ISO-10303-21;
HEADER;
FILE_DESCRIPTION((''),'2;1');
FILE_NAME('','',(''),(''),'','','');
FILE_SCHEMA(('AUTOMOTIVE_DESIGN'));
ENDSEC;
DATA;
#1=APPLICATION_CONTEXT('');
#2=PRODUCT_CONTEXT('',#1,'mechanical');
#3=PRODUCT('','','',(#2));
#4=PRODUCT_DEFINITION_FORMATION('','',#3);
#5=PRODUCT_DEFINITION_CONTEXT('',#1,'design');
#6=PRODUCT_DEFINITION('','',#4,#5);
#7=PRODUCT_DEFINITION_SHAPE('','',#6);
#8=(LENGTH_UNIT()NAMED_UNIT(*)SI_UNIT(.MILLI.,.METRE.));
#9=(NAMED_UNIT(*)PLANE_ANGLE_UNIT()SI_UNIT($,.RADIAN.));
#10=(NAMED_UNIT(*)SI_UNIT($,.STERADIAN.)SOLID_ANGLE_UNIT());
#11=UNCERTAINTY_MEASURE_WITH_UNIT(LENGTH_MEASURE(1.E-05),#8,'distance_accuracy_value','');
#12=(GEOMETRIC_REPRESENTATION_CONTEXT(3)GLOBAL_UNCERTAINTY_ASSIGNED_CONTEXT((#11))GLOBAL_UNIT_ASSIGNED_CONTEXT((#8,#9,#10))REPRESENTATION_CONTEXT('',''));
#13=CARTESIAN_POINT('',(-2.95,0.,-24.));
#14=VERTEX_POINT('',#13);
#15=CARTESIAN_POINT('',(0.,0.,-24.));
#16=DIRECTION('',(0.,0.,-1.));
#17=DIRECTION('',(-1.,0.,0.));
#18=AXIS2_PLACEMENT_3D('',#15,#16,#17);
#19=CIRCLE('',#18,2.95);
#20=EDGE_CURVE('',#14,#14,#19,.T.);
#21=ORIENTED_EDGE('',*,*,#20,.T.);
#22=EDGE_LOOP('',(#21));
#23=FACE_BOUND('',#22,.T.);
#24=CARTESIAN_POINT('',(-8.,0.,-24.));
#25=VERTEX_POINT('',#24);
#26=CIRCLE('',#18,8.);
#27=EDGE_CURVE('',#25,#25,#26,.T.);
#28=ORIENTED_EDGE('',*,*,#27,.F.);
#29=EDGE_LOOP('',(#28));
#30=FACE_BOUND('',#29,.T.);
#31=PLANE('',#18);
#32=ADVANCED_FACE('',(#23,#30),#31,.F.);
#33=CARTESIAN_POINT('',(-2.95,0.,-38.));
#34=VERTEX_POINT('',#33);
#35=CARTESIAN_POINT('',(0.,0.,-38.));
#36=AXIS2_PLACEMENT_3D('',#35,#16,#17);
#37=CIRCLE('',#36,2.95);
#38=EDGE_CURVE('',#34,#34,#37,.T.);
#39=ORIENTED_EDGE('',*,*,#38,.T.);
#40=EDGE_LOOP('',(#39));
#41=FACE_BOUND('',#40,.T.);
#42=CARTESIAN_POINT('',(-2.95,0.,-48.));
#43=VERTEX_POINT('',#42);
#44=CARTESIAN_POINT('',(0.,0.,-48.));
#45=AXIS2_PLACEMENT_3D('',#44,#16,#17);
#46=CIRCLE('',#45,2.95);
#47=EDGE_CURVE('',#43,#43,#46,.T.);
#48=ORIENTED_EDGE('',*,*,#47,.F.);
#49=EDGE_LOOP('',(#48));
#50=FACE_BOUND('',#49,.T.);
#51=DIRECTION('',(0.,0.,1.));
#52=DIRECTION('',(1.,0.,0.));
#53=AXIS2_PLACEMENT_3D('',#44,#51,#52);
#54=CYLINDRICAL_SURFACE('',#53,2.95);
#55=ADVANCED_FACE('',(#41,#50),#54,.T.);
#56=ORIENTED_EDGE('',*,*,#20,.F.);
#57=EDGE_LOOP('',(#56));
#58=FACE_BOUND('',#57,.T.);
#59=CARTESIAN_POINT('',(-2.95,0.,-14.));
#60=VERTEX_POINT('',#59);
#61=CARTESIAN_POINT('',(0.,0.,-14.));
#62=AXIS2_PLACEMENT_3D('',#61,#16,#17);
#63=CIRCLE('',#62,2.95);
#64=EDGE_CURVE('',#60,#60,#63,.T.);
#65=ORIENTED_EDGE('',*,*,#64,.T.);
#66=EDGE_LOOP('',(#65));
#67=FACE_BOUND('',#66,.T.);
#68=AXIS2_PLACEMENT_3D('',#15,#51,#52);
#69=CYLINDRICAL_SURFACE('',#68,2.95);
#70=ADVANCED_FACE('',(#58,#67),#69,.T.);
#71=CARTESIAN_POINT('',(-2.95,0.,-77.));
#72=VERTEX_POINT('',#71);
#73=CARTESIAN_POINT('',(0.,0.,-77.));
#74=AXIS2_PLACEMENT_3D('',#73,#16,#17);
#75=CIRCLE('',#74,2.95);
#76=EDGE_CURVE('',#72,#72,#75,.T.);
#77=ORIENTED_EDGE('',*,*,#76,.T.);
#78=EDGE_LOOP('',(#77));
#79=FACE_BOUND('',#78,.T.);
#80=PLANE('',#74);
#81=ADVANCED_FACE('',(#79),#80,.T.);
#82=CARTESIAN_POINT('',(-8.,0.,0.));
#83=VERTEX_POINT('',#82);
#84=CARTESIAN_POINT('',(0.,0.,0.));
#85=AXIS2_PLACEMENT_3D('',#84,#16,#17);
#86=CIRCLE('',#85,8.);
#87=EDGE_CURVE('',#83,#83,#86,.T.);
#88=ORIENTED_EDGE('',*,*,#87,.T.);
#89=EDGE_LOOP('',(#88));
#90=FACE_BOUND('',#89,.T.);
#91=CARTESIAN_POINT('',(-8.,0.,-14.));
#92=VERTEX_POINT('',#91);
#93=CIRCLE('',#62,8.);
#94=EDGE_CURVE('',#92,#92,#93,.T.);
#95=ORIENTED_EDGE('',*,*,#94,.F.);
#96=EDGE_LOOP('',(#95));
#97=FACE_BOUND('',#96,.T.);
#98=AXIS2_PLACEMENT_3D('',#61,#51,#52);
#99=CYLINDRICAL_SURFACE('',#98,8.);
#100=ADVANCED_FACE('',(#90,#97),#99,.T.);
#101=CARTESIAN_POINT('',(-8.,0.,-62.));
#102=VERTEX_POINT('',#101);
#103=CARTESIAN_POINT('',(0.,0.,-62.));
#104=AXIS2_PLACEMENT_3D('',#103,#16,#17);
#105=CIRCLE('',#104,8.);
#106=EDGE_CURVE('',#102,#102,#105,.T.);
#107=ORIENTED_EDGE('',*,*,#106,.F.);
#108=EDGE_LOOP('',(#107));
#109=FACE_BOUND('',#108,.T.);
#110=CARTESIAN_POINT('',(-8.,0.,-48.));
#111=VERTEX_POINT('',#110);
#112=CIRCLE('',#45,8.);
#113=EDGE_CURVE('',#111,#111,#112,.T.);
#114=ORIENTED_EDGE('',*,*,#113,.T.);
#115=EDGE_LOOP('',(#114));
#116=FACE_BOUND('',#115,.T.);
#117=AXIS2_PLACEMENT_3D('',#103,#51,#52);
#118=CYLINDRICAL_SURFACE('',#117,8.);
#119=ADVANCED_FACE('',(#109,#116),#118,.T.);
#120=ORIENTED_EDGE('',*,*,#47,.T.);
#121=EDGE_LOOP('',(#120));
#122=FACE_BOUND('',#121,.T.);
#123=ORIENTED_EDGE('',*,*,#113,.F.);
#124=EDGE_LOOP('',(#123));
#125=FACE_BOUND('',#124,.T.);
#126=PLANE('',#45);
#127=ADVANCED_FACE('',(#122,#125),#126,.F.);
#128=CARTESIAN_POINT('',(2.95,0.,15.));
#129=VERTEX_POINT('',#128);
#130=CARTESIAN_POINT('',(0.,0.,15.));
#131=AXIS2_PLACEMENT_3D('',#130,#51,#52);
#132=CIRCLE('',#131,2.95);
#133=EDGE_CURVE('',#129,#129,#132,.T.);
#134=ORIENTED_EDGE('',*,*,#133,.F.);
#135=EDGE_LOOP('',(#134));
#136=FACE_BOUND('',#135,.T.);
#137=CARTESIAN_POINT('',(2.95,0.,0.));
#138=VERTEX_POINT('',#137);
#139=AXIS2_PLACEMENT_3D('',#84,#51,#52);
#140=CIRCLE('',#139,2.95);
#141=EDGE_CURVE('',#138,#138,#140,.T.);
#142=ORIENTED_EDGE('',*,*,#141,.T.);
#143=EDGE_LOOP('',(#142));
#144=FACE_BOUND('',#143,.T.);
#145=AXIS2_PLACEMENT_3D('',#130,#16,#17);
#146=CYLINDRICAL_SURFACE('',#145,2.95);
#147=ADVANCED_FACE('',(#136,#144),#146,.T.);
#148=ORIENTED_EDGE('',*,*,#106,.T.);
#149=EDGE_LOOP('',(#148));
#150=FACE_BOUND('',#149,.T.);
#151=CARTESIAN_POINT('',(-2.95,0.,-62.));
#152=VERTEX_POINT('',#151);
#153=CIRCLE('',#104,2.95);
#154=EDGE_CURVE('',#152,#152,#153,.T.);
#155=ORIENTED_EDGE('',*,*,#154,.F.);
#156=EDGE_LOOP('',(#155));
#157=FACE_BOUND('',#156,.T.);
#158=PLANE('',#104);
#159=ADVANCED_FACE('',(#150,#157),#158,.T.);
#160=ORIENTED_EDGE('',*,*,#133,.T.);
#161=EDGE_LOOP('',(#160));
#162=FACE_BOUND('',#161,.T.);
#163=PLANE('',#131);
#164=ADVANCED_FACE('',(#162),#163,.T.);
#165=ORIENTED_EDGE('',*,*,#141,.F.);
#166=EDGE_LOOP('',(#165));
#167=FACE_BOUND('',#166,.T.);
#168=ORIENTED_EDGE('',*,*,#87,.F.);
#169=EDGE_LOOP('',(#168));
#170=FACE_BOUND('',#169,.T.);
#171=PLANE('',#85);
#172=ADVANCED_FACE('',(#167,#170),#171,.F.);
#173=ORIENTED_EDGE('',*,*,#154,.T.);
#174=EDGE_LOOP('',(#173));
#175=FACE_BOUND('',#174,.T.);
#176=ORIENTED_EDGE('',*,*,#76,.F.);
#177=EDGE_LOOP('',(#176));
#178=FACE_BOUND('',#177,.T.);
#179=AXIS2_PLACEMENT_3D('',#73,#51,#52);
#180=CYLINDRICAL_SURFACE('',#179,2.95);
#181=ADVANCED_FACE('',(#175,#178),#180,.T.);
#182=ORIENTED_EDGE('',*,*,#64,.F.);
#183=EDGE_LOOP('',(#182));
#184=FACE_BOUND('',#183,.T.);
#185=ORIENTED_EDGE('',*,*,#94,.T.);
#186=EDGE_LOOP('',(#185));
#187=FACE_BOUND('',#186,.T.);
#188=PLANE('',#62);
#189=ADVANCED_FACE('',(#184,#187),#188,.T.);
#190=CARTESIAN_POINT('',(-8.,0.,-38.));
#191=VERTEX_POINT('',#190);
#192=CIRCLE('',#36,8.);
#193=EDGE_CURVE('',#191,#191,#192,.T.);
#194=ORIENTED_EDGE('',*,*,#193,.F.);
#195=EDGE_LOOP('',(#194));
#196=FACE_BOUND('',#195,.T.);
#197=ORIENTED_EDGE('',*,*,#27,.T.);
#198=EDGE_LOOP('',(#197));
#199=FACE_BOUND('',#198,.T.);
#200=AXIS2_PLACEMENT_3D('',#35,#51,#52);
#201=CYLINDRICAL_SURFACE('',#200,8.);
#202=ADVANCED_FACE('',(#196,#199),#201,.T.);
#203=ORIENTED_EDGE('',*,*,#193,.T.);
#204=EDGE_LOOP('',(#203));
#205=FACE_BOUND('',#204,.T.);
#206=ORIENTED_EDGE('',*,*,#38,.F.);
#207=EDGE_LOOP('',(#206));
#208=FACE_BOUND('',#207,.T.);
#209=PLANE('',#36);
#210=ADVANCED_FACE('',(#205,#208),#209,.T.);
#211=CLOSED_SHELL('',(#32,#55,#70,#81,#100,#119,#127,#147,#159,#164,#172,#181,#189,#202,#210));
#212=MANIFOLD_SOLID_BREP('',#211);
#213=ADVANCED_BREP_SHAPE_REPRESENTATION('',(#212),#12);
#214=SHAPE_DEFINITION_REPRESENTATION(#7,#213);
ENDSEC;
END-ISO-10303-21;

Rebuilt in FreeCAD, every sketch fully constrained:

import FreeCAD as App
import Part
import Sketcher
from FreeCAD import Vector

doc = App.newDocument("Part")
params = doc.addObject("Spreadsheet::Sheet", "Params")
for row, (alias, value) in enumerate([
    ("sketch1_diameter", "5.9 mm"),
    ("pad1_length", "15 mm"),
    ("sketch2_diameter", "16 mm"),
    ("pad2_length", "14 mm"),
    ("sketch3_diameter", "5.9 mm"),
    ("pad3_length", "10 mm"),
    ("sketch4_diameter", "16 mm"),
    ("pad4_length", "14 mm"),
    ("sketch5_diameter", "5.9 mm"),
    ("pad5_length", "10 mm"),
    ("sketch6_diameter", "16 mm"),
    ("pad6_length", "14 mm"),
    ("sketch7_diameter", "5.9 mm"),
    ("pad7_length", "15 mm"),
], start=1):
    params.set(f"A{row}", alias)
    params.set(f"B{row}", "=" + value)
    params.setAlias(f"B{row}", alias)

body = doc.addObject("PartDesign::Body", "Body")

# Sketch on XY plane
sketch1 = body.newObject("Sketcher::SketchObject", "Sketch")
sketch1.AttachmentSupport = (doc.getObject("XY_Plane"), [""])
sketch1.MapMode = "FlatFace"
sketch1.addGeometry(Part.Circle(Vector(0, 0, 0), Vector(0, 0, 1), 3), False)
sketch1.addConstraint([
    Sketcher.Constraint("Coincident", 0, 3, -1, 1),
    Sketcher.Constraint("Diameter", 0, 5.9),
])
sketch1.setExpression("Constraints[1]", "Params.sketch1_diameter")
pad1 = body.newObject("PartDesign::Pad", "Pad")
pad1.Profile = sketch1
pad1.setExpression("Length", "Params.pad1_length")

# Sketch on XY plane
sketch2 = body.newObject("Sketcher::SketchObject", "Sketch001")
sketch2.AttachmentSupport = (doc.getObject("XY_Plane"), [""])
sketch2.MapMode = "FlatFace"
sketch2.addGeometry(Part.Circle(Vector(0, 0, 0), Vector(0, 0, 1), 8), False)
sketch2.addConstraint([
    Sketcher.Constraint("Coincident", 0, 3, -1, 1),
    Sketcher.Constraint("Diameter", 0, 16.0),
])
sketch2.setExpression("Constraints[1]", "Params.sketch2_diameter")
pad2 = body.newObject("PartDesign::Pad", "Pad001")
pad2.Profile = sketch2
pad2.setExpression("Length", "Params.pad2_length")
pad2.Reversed = True

# Sketch on XY plane
sketch3 = body.newObject("Sketcher::SketchObject", "Sketch002")
sketch3.AttachmentSupport = (doc.getObject("XY_Plane"), [""])
sketch3.MapMode = "FlatFace"
sketch3.AttachmentOffset = App.Placement(Vector(0, 0, -24), App.Rotation())
sketch3.addGeometry(Part.Circle(Vector(0, 0, 0), Vector(0, 0, 1), 3), False)
sketch3.addConstraint([
    Sketcher.Constraint("Coincident", 0, 3, -1, 1),
    Sketcher.Constraint("Diameter", 0, 5.9),
])
sketch3.setExpression("Constraints[1]", "Params.sketch3_diameter")
pad3 = body.newObject("PartDesign::Pad", "Pad002")
pad3.Profile = sketch3
pad3.setExpression("Length", "Params.pad3_length")

# Sketch on XY plane
sketch4 = body.newObject("Sketcher::SketchObject", "Sketch003")
sketch4.AttachmentSupport = (doc.getObject("XY_Plane"), [""])
sketch4.MapMode = "FlatFace"
sketch4.AttachmentOffset = App.Placement(Vector(0, 0, -24), App.Rotation())
sketch4.addGeometry(Part.Circle(Vector(0, 0, 0), Vector(0, 0, 1), 8), False)
sketch4.addConstraint([
    Sketcher.Constraint("Coincident", 0, 3, -1, 1),
    Sketcher.Constraint("Diameter", 0, 16.0),
])
sketch4.setExpression("Constraints[1]", "Params.sketch4_diameter")
pad4 = body.newObject("PartDesign::Pad", "Pad003")
pad4.Profile = sketch4
pad4.setExpression("Length", "Params.pad4_length")
pad4.Reversed = True

# Sketch on XY plane
sketch5 = body.newObject("Sketcher::SketchObject", "Sketch004")
sketch5.AttachmentSupport = (doc.getObject("XY_Plane"), [""])
sketch5.MapMode = "FlatFace"
sketch5.AttachmentOffset = App.Placement(Vector(0, 0, -48), App.Rotation())
sketch5.addGeometry(Part.Circle(Vector(0, 0, 0), Vector(0, 0, 1), 3), False)
sketch5.addConstraint([
    Sketcher.Constraint("Coincident", 0, 3, -1, 1),
    Sketcher.Constraint("Diameter", 0, 5.9),
])
sketch5.setExpression("Constraints[1]", "Params.sketch5_diameter")
pad5 = body.newObject("PartDesign::Pad", "Pad004")
pad5.Profile = sketch5
pad5.setExpression("Length", "Params.pad5_length")

# Sketch on XY plane
sketch6 = body.newObject("Sketcher::SketchObject", "Sketch005")
sketch6.AttachmentSupport = (doc.getObject("XY_Plane"), [""])
sketch6.MapMode = "FlatFace"
sketch6.AttachmentOffset = App.Placement(Vector(0, 0, -48), App.Rotation())
sketch6.addGeometry(Part.Circle(Vector(0, 0, 0), Vector(0, 0, 1), 8), False)
sketch6.addConstraint([
    Sketcher.Constraint("Coincident", 0, 3, -1, 1),
    Sketcher.Constraint("Diameter", 0, 16.0),
])
sketch6.setExpression("Constraints[1]", "Params.sketch6_diameter")
pad6 = body.newObject("PartDesign::Pad", "Pad005")
pad6.Profile = sketch6
pad6.setExpression("Length", "Params.pad6_length")
pad6.Reversed = True

# Sketch on XY plane
sketch7 = body.newObject("Sketcher::SketchObject", "Sketch006")
sketch7.AttachmentSupport = (doc.getObject("XY_Plane"), [""])
sketch7.MapMode = "FlatFace"
sketch7.AttachmentOffset = App.Placement(Vector(0, 0, -77), App.Rotation())
sketch7.addGeometry(Part.Circle(Vector(0, 0, 0), Vector(0, 0, 1), 3), False)
sketch7.addConstraint([
    Sketcher.Constraint("Coincident", 0, 3, -1, 1),
    Sketcher.Constraint("Diameter", 0, 5.9),
])
sketch7.setExpression("Constraints[1]", "Params.sketch7_diameter")
pad7 = body.newObject("PartDesign::Pad", "Pad006")
pad7.Profile = sketch7
pad7.setExpression("Length", "Params.pad7_length")

doc.recompute()
